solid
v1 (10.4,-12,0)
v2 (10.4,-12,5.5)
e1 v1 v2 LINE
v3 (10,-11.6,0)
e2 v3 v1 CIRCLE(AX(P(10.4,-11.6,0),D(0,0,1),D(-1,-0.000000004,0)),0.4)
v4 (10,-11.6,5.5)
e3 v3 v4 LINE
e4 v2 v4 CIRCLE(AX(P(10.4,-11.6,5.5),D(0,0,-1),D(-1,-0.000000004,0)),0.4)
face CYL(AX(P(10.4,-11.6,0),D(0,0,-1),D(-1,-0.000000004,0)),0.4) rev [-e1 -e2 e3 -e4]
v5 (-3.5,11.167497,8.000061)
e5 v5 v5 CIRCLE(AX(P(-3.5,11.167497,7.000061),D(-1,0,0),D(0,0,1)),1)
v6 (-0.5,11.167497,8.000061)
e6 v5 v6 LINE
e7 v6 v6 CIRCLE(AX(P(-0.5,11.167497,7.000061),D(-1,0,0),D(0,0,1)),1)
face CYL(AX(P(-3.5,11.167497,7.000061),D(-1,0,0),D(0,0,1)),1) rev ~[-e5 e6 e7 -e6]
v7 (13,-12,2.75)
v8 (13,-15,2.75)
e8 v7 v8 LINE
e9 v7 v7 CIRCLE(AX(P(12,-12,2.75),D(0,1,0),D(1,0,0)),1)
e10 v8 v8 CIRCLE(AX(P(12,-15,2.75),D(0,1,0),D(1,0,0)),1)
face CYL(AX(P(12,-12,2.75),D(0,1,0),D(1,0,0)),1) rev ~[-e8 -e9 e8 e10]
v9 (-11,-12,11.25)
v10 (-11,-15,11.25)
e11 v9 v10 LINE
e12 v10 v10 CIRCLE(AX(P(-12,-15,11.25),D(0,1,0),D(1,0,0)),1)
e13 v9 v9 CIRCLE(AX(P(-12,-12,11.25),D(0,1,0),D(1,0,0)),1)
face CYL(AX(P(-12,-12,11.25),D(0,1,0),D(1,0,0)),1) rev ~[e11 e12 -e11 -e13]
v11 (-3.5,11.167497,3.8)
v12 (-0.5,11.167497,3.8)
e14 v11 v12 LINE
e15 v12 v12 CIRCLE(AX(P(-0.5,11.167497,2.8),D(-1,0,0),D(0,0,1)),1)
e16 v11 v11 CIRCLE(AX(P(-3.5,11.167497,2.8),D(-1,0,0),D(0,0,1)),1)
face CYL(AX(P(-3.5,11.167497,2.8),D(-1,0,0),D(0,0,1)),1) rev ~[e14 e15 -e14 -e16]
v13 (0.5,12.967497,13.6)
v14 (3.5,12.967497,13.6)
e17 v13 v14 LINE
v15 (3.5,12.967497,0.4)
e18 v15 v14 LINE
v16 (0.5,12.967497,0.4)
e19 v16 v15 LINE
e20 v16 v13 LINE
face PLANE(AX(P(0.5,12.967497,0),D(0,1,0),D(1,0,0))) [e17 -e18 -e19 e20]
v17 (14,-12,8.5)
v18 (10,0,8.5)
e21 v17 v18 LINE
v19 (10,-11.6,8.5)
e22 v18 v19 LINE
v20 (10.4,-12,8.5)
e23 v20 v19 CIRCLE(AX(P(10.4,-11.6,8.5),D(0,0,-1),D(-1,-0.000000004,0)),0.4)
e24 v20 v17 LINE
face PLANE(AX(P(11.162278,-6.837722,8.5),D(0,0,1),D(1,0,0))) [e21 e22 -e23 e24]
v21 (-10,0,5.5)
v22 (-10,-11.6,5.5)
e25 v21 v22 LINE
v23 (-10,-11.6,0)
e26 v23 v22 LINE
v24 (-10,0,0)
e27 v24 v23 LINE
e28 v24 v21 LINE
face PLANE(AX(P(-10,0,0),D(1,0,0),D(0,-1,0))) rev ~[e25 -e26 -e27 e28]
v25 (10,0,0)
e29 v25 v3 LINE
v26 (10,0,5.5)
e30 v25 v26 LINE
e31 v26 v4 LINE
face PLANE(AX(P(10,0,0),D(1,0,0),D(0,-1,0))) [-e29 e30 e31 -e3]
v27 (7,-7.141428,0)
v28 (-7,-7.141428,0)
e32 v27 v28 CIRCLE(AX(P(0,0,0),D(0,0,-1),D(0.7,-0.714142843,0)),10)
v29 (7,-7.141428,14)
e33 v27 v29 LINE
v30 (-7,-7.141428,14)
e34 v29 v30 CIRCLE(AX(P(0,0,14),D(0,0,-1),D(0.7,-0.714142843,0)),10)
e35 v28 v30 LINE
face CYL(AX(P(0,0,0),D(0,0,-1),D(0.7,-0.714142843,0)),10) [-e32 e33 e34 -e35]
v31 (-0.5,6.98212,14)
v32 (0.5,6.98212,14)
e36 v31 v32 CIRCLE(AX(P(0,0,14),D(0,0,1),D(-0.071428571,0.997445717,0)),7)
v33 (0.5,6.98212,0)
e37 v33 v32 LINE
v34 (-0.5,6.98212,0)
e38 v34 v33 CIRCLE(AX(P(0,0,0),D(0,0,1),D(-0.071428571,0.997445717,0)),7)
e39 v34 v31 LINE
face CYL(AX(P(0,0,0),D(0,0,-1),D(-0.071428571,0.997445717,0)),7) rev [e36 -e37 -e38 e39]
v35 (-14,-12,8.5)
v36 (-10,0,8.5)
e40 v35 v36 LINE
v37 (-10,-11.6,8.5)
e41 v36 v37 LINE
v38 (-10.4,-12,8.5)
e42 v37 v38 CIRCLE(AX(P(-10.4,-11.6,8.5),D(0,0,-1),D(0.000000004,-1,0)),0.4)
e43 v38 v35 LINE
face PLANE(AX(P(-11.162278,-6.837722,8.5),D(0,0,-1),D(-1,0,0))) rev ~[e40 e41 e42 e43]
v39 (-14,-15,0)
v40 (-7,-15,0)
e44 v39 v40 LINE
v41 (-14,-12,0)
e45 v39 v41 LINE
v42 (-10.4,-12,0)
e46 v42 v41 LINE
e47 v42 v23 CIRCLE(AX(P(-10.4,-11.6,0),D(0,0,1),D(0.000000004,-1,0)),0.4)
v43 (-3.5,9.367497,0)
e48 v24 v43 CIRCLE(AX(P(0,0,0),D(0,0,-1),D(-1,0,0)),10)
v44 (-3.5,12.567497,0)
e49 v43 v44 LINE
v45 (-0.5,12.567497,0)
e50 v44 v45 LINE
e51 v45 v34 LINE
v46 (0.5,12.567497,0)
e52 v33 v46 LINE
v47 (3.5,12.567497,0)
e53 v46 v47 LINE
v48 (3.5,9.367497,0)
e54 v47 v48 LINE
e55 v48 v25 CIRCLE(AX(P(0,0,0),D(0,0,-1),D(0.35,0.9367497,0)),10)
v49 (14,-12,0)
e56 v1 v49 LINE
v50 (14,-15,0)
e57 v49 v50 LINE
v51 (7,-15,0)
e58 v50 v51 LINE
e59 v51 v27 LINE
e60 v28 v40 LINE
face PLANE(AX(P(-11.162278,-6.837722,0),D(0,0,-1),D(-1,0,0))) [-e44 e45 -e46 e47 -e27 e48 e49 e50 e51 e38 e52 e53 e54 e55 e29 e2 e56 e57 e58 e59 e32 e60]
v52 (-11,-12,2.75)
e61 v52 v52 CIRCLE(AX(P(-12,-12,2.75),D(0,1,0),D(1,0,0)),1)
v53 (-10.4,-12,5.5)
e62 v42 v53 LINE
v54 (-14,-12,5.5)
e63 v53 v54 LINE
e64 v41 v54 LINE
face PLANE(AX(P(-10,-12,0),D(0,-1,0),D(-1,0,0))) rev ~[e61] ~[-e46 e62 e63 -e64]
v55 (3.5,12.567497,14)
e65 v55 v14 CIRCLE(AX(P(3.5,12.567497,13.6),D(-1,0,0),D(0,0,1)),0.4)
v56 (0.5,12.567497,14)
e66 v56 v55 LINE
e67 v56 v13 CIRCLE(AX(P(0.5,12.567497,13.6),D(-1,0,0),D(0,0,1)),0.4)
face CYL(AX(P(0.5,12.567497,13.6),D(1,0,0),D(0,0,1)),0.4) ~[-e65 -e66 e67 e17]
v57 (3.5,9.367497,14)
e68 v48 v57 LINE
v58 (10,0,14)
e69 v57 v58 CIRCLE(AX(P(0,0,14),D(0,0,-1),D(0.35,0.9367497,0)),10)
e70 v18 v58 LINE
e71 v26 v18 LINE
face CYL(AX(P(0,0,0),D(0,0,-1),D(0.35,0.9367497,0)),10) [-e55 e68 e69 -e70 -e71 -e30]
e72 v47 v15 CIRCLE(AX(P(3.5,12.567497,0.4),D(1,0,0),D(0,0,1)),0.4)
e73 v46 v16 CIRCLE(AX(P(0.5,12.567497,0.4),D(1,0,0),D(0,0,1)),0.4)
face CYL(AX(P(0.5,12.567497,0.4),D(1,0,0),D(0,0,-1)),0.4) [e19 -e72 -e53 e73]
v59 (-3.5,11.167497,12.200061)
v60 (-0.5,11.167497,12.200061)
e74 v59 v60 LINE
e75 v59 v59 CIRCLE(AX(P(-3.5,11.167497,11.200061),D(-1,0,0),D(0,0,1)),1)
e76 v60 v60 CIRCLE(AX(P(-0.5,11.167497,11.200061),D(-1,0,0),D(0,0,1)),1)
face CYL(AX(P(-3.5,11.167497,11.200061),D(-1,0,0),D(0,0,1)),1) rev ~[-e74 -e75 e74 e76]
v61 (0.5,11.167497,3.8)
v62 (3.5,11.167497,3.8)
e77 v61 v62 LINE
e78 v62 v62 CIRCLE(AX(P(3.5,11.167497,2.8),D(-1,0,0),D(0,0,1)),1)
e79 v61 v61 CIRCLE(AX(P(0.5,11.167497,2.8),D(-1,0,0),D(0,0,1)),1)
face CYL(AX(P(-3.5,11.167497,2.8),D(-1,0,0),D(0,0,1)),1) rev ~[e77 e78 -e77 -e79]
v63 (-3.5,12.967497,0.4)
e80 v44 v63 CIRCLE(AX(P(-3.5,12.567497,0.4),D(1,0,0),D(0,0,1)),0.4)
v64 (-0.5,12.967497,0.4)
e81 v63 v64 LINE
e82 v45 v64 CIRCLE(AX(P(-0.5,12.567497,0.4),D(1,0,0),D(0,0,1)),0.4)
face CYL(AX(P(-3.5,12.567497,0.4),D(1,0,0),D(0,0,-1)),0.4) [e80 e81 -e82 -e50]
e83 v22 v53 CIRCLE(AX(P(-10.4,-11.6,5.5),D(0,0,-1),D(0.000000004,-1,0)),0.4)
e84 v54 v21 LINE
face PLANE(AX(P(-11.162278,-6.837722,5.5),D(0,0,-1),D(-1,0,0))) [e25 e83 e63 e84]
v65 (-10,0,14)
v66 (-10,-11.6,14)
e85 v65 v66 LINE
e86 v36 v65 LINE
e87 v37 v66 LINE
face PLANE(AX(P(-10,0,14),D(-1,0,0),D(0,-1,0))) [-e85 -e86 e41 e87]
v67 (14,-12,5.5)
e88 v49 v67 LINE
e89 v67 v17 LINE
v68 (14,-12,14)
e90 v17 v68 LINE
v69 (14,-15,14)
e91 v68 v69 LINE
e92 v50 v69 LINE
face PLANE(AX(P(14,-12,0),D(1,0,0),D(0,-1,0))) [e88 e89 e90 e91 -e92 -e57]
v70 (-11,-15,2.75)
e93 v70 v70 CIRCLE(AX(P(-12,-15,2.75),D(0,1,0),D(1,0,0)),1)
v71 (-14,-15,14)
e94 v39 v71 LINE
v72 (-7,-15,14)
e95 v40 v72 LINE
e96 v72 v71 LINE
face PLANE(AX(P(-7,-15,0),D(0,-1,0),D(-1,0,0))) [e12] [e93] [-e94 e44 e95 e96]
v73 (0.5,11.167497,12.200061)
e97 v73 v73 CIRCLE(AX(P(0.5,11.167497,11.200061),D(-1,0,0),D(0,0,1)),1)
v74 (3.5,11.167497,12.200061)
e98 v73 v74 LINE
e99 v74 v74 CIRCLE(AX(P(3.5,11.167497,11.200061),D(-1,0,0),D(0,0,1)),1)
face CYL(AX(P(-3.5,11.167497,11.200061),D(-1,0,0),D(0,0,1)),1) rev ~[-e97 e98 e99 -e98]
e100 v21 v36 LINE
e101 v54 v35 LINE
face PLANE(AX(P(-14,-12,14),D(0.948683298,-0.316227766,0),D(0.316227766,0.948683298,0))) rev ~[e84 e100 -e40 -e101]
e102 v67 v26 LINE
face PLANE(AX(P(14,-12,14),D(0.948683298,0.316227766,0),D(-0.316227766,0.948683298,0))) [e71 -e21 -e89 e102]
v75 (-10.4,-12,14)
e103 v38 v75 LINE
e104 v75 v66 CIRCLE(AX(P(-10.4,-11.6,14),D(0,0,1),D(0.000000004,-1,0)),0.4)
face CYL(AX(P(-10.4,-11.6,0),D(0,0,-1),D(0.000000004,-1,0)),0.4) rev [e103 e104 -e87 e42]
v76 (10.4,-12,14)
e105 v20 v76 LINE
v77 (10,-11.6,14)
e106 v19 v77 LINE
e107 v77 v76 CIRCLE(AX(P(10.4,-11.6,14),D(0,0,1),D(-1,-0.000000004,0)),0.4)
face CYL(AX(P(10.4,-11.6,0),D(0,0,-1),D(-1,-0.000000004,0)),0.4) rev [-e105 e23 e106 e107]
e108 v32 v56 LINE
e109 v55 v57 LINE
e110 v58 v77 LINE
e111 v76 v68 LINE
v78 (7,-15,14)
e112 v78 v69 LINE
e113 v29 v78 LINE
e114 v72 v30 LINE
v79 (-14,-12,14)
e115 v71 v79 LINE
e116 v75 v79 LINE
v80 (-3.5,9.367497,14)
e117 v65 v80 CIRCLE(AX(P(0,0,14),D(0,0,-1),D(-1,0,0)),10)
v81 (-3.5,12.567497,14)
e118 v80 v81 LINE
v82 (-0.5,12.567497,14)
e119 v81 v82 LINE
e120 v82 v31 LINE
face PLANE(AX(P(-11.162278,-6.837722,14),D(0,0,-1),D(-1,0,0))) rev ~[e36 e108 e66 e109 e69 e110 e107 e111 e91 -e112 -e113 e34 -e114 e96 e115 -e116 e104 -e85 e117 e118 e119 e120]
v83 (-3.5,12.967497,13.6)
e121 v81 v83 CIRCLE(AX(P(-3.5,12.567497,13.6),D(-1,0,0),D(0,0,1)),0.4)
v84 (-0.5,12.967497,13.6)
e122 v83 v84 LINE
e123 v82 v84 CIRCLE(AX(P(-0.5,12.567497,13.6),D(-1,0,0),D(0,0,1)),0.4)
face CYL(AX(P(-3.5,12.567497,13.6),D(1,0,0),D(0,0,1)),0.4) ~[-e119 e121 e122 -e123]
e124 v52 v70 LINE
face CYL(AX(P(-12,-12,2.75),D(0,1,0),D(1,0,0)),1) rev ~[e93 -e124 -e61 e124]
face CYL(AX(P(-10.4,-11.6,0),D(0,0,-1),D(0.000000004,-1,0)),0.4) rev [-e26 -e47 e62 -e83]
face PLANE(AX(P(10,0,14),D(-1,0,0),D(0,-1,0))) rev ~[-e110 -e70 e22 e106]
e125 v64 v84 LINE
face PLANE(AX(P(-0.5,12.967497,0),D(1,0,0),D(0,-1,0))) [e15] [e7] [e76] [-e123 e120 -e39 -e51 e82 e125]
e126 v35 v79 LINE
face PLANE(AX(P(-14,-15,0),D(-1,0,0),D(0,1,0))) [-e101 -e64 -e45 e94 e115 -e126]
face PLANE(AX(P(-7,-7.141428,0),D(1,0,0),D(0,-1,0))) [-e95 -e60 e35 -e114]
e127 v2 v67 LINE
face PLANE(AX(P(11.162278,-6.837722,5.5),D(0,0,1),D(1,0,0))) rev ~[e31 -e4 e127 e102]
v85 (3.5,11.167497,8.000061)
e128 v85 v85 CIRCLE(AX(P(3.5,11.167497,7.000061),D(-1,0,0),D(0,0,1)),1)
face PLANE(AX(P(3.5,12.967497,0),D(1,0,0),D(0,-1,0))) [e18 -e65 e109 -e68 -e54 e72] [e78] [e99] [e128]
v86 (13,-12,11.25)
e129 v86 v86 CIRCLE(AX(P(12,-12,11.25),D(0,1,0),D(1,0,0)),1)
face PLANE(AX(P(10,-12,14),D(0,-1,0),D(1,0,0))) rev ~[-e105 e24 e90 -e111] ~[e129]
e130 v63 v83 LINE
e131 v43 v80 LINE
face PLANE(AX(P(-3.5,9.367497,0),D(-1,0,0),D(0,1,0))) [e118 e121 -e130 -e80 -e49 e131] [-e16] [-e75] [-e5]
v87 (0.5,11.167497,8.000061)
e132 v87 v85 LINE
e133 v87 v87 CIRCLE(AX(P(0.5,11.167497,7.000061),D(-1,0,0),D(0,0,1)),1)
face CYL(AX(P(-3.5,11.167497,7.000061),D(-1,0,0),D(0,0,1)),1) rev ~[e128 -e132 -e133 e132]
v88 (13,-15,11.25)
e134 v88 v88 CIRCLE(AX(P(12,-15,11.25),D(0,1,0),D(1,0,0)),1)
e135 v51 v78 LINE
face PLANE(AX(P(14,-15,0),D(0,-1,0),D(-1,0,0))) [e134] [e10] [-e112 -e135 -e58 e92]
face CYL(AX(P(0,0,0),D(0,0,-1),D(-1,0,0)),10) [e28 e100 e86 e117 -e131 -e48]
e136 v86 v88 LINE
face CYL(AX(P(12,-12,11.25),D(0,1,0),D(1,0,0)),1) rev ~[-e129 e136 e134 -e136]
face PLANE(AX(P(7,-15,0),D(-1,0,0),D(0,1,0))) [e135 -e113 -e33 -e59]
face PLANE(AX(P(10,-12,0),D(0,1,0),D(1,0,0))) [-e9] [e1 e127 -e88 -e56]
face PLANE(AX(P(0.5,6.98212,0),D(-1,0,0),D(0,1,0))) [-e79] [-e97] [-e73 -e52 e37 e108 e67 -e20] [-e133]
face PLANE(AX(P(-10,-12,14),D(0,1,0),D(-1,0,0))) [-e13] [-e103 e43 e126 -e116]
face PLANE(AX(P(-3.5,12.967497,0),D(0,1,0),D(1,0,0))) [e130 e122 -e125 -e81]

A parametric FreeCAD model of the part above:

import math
import FreeCAD as App
import Part
import Sketcher
Q = App.Units.Quantity


def edges_at(feature, points):
    """Names of the edges that pass closest to the given points."""
    edges = feature.Shape.Edges
    near = lambda p: min(range(len(edges)), key=lambda i: edges[i].distToShape(Part.Vertex(*p))[0])
    return sorted({f"Edge{near(p) + 1}" for p in points})

doc = App.newDocument("Part")
body = doc.addObject("PartDesign::Body", "Body")

sketch1 = body.newObject("Sketcher::SketchObject", "Sketch")
sketch1.AttachmentSupport = (doc.getObject("XY_Plane"), [""])
sketch1.MapMode = "FlatFace"
sketch1.addGeometry(Part.LineSegment(App.Vector(0.5, 12.97, 0), App.Vector(0.5, 6.98, 0)), False)
sketch1.addGeometry(Part.ArcOfCircle(Part.Circle(App.Vector(0, 0, 0), App.Vector(0, 0, 1), 7), math.radians(94), math.radians(446)), False)
sketch1.addGeometry(Part.LineSegment(App.Vector(-0.5, 6.98, 0), App.Vector(-0.5, 12.97, 0)), False)
sketch1.addGeometry(Part.LineSegment(App.Vector(-0.5, 12.97, 0), App.Vector(-3.5, 12.97, 0)), False)
sketch1.addGeometry(Part.LineSegment(App.Vector(-3.5, 12.97, 0), App.Vector(-3.5, 9.37, 0)), False)
sketch1.addGeometry(Part.ArcOfCircle(Part.Circle(App.Vector(0, 0, 0), App.Vector(0, 0, 1), 10), math.radians(110), math.radians(180)), False)
sketch1.addGeometry(Part.LineSegment(App.Vector(-10, 0, 0), App.Vector(-10, -11.6, 0)), False)
sketch1.addGeometry(Part.ArcOfCircle(Part.Circle(App.Vector(-10.4, -11.6, 0), App.Vector(0, 0, 1), 0.4), math.radians(-90), math.radians(0)), False)
sketch1.addGeometry(Part.LineSegment(App.Vector(-10.4, -12, 0), App.Vector(-14, -12, 0)), False)
sketch1.addGeometry(Part.LineSegment(App.Vector(-14, -12, 0), App.Vector(-14, -15, 0)), False)
sketch1.addGeometry(Part.LineSegment(App.Vector(-14, -15, 0), App.Vector(-7, -15, 0)), False)
sketch1.addGeometry(Part.LineSegment(App.Vector(-7, -15, 0), App.Vector(-7, -7.14, 0)), False)
sketch1.addGeometry(Part.ArcOfCircle(Part.Circle(App.Vector(0, 0, 0), App.Vector(0, 0, 1), 10), math.radians(-134), math.radians(-46)), False)
sketch1.addGeometry(Part.LineSegment(App.Vector(7, -7.14, 0), App.Vector(7, -15, 0)), False)
sketch1.addGeometry(Part.LineSegment(App.Vector(7, -15, 0), App.Vector(14, -15, 0)), False)
sketch1.addGeometry(Part.LineSegment(App.Vector(14, -15, 0), App.Vector(14, -12, 0)), False)
sketch1.addGeometry(Part.LineSegment(App.Vector(14, -12, 0), App.Vector(10.4, -12, 0)), False)
sketch1.addGeometry(Part.ArcOfCircle(Part.Circle(App.Vector(10.4, -11.6, 0), App.Vector(0, 0, 1), 0.4), math.radians(-180), math.radians(-90)), False)
sketch1.addGeometry(Part.LineSegment(App.Vector(10, -11.6, 0), App.Vector(10, 0, 0)), False)
sketch1.addGeometry(Part.ArcOfCircle(Part.Circle(App.Vector(0, 0, 0), App.Vector(0, 0, 1), 10), math.radians(0), math.radians(70)), False)
sketch1.addGeometry(Part.LineSegment(App.Vector(3.5, 9.37, 0), App.Vector(3.5, 12.97, 0)), False)
sketch1.addGeometry(Part.LineSegment(App.Vector(3.5, 12.97, 0), App.Vector(0.5, 12.97, 0)), False)
sketch1.addConstraint(Sketcher.Constraint("Coincident", 0, 2, 1, 2))
sketch1.addConstraint(Sketcher.Constraint("Coincident", 1, 1, 2, 1))
sketch1.addConstraint(Sketcher.Constraint("Coincident", 2, 2, 3, 1))
sketch1.addConstraint(Sketcher.Constraint("Coincident", 3, 2, 4, 1))
sketch1.addConstraint(Sketcher.Constraint("Coincident", 4, 2, 5, 1))
sketch1.addConstraint(Sketcher.Constraint("Tangent", 5, 2, 6, 1))
sketch1.addConstraint(Sketcher.Constraint("Tangent", 6, 2, 7, 2))
sketch1.addConstraint(Sketcher.Constraint("Tangent", 7, 1, 8, 1))
sketch1.addConstraint(Sketcher.Constraint("Coincident", 8, 2, 9, 1))
sketch1.addConstraint(Sketcher.Constraint("Coincident", 9, 2, 10, 1))
sketch1.addConstraint(Sketcher.Constraint("Coincident", 10, 2, 11, 1))
sketch1.addConstraint(Sketcher.Constraint("Coincident", 11, 2, 12, 1))
sketch1.addConstraint(Sketcher.Constraint("Coincident", 12, 2, 13, 1))
sketch1.addConstraint(Sketcher.Constraint("Coincident", 13, 2, 14, 1))
sketch1.addConstraint(Sketcher.Constraint("Coincident", 14, 2, 15, 1))
sketch1.addConstraint(Sketcher.Constraint("Coincident", 15, 2, 16, 1))
sketch1.addConstraint(Sketcher.Constraint("Tangent", 16, 2, 17, 2))
sketch1.addConstraint(Sketcher.Constraint("Tangent", 17, 1, 18, 1))
sketch1.addConstraint(Sketcher.Constraint("Tangent", 18, 2, 19, 1))
sketch1.addConstraint(Sketcher.Constraint("Coincident", 19, 2, 20, 1))
sketch1.addConstraint(Sketcher.Constraint("Coincident", 20, 2, 21, 1))
sketch1.addConstraint(Sketcher.Constraint("Coincident", 21, 2, 0, 1))
sketch1.addConstraint(Sketcher.Constraint("Vertical", 0))
sketch1.addConstraint(Sketcher.Constraint("Vertical", 2))
sketch1.addConstraint(Sketcher.Constraint("Horizontal", 3))
sketch1.addConstraint(Sketcher.Constraint("Vertical", 4))
sketch1.addConstraint(Sketcher.Constraint("Vertical", 6))
sketch1.addConstraint(Sketcher.Constraint("Horizontal", 8))
sketch1.addConstraint(Sketcher.Constraint("Vertical", 9))
sketch1.addConstraint(Sketcher.Constraint("Horizontal", 10))
sketch1.addConstraint(Sketcher.Constraint("Vertical", 11))
sketch1.addConstraint(Sketcher.Constraint("Vertical", 13))
sketch1.addConstraint(Sketcher.Constraint("Horizontal", 14))
sketch1.addConstraint(Sketcher.Constraint("Vertical", 15))
sketch1.addConstraint(Sketcher.Constraint("Horizontal", 16))
sketch1.addConstraint(Sketcher.Constraint("Vertical", 18))
sketch1.addConstraint(Sketcher.Constraint("Vertical", 20))
sketch1.addConstraint(Sketcher.Constraint("Horizontal", 21))
sketch1.addConstraint(Sketcher.Constraint("Coincident", 1, 3, -1, 1))
sketch1.addConstraint(Sketcher.Constraint("Coincident", 5, 3, -1, 1))
sketch1.addConstraint(Sketcher.Constraint("Coincident", 12, 3, -1, 1))
sketch1.addConstraint(Sketcher.Constraint("Coincident", 19, 3, -1, 1))
sketch1.addConstraint(Sketcher.Constraint("Equal", 5, 12))
sketch1.addConstraint(Sketcher.Constraint("Equal", 7, 17))
sketch1.addConstraint(Sketcher.Constraint("Equal", 12, 19))
sketch1.addConstraint(Sketcher.Constraint("Symmetric", 10, 2, 13, 2, -2))
sketch1.addConstraint(Sketcher.Constraint("Symmetric", 8, 2, 15, 2, -2))
sketch1.addConstraint(Sketcher.Constraint("Symmetric", 3, 2, 20, 2, -2))
sketch1.addConstraint(Sketcher.Constraint("Horizontal", 0, 2, 1, 1))
sketch1.addConstraint(Sketcher.Constraint("Equal", 16, 4))
sketch1.addConstraint(Sketcher.Constraint("Equal", 21, 9))
sketch1.addConstraint(Sketcher.Constraint("Radius", 1, Q("7 mm")))
sketch1.addConstraint(Sketcher.Constraint("Radius", 5, Q("10 mm")))
sketch1.addConstraint(Sketcher.Constraint("Radius", 7, Q("0.4 mm")))
sketch1.addConstraint(Sketcher.Constraint("DistanceX", 3, 2, 3, 1, Q("3 mm")))
sketch1.addConstraint(Sketcher.Constraint("DistanceX", 10, 1, 10, 2, Q("7 mm")))
sketch1.addConstraint(Sketcher.Constraint("DistanceX", 8, 2, 8, 1, Q("3.6 mm")))
sketch1.addConstraint(Sketcher.Constraint("DistanceY", 6, 2, 6, 1, Q("11.6 mm")))
sketch1.addConstraint(Sketcher.Constraint("DistanceX", 1, 1, 0, 2, Q("1 mm")))
pad1 = body.newObject("PartDesign::Pad", "Pad")
pad1.Profile = sketch1
pad1.Length = 14

sketch2 = body.newObject("Sketcher::SketchObject", "Sketch001")
sketch2.AttachmentSupport = (doc.getObject("XY_Plane"), [""])
sketch2.MapMode = "FlatFace"
sketch2.AttachmentOffset = App.Placement(App.Vector(0, 0, 14), App.Rotation())
sketch2.addGeometry(Part.LineSegment(App.Vector(-7.4, -14.6, 0), App.Vector(-7.4, -15, 0)), False)
sketch2.addGeometry(Part.LineSegment(App.Vector(-7.4, -15, 0), App.Vector(-7, -15, 0)), False)
sketch2.addGeometry(Part.LineSegment(App.Vector(-7, -15, 0), App.Vector(-7, -14.6, 0)), False)
sketch2.addGeometry(Part.LineSegment(App.Vector(-7, -14.6, 0), App.Vector(-7.4, -14.6, 0)), False)
sketch2.addGeometry(Part.LineSegment(App.Vector(7, -14.6, 0), App.Vector(7, -15, 0)), False)
sketch2.addGeometry(Part.LineSegment(App.Vector(7, -15, 0), App.Vector(7.4, -15, 0)), False)
sketch2.addGeometry(Part.LineSegment(App.Vector(7.4, -15, 0), App.Vector(7.4, -14.6, 0)), False)
sketch2.addGeometry(Part.LineSegment(App.Vector(7.4, -14.6, 0), App.Vector(7, -14.6, 0)), False)
sketch2.addConstraint(Sketcher.Constraint("Coincident", 0, 2, 1, 1))
sketch2.addConstraint(Sketcher.Constraint("Coincident", 1, 2, 2, 1))
sketch2.addConstraint(Sketcher.Constraint("Coincident", 2, 2, 3, 1))
sketch2.addConstraint(Sketcher.Constraint("Coincident", 3, 2, 0, 1))
sketch2.addConstraint(Sketcher.Constraint("Coincident", 4, 2, 5, 1))
sketch2.addConstraint(Sketcher.Constraint("Coincident", 5, 2, 6, 1))
sketch2.addConstraint(Sketcher.Constraint("Coincident", 6, 2, 7, 1))
sketch2.addConstraint(Sketcher.Constraint("Coincident", 7, 2, 4, 1))
sketch2.addConstraint(Sketcher.Constraint("Vertical", 0))
sketch2.addConstraint(Sketcher.Constraint("Horizontal", 1))
sketch2.addConstraint(Sketcher.Constraint("Vertical", 2))
sketch2.addConstraint(Sketcher.Constraint("Horizontal", 3))
sketch2.addConstraint(Sketcher.Constraint("Vertical", 4))
sketch2.addConstraint(Sketcher.Constraint("Horizontal", 5))
sketch2.addConstraint(Sketcher.Constraint("Vertical", 6))
sketch2.addConstraint(Sketcher.Constraint("Horizontal", 7))
sketch2.addConstraint(Sketcher.Constraint("Symmetric", 1, 2, 4, 2, -2))
sketch2.addConstraint(Sketcher.Constraint("Symmetric", 3, 2, 6, 2, -2))
sketch2.addConstraint(Sketcher.Constraint("Equal", 7, 0))
sketch2.addConstraint(Sketcher.Constraint("DistanceX", 1, 1, 1, 2, Q("0.4 mm")))
sketch2.addConstraint(Sketcher.Constraint("DistanceY", 0, 2, -1, 1, Q("15 mm")))
sketch2.addConstraint(Sketcher.Constraint("DistanceX", 1, 2, -1, 1, Q("7 mm")))
pocket1 = body.newObject("PartDesign::Pocket", "Pocket")
pocket1.Profile = sketch2
pocket1.Type = "ThroughAll"
pocket1.Midplane = True

sketch3 = body.newObject("Sketcher::SketchObject", "Sketch002")
sketch3.AttachmentSupport = (doc.getObject("XY_Plane"), [""])
sketch3.MapMode = "FlatFace"
sketch3.AttachmentOffset = App.Placement(App.Vector(0, 0, 14), App.Rotation())
sketch3.addGeometry(Part.LineSegment(App.Vector(-10, 0, 0), App.Vector(-14, -12, 0)), False)
sketch3.addGeometry(Part.LineSegment(App.Vector(-14, -12, 0), App.Vector(-10, -12, 0)), False)
sketch3.addGeometry(Part.LineSegment(App.Vector(-10, -12, 0), App.Vector(-10, 0, 0)), False)
sketch3.addGeometry(Part.LineSegment(App.Vector(14, -12, 0), App.Vector(10, 0, 0)), False)
sketch3.addGeometry(Part.LineSegment(App.Vector(10, 0, 0), App.Vector(10, -12, 0)), False)
sketch3.addGeometry(Part.LineSegment(App.Vector(10, -12, 0), App.Vector(14, -12, 0)), False)
sketch3.addConstraint(Sketcher.Constraint("Coincident", 0, 2, 1, 1))
sketch3.addConstraint(Sketcher.Constraint("Coincident", 1, 2, 2, 1))
sketch3.addConstraint(Sketcher.Constraint("Coincident", 2, 2, 0, 1))
sketch3.addConstraint(Sketcher.Constraint("Coincident", 3, 2, 4, 1))
sketch3.addConstraint(Sketcher.Constraint("Coincident", 4, 2, 5, 1))
sketch3.addConstraint(Sketcher.Constraint("Coincident", 5, 2, 3, 1))
sketch3.addConstraint(Sketcher.Constraint("Horizontal", 1))
sketch3.addConstraint(Sketcher.Constraint("Vertical", 2))
sketch3.addConstraint(Sketcher.Constraint("Vertical", 4))
sketch3.addConstraint(Sketcher.Constraint("Horizontal", 5))
sketch3.addConstraint(Sketcher.Constraint("Symmetric", 2, 2, 3, 2, -1, 1))
sketch3.addConstraint(Sketcher.Constraint("Symmetric", 0, 2, 5, 2, -2))
sketch3.addConstraint(Sketcher.Constraint("PointOnObject", 2, 2, -1))
sketch3.addConstraint(Sketcher.Constraint("DistanceX", 1, 1, 1, 2, Q("4 mm")))
sketch3.addConstraint(Sketcher.Constraint("DistanceY", 2, 1, 2, 2, Q("12 mm")))
sketch3.addConstraint(Sketcher.Constraint("DistanceX", 0, 2, -1, 1, Q("14 mm")))
pad2 = body.newObject("PartDesign::Pad", "Pad001")
pad2.Profile = sketch3
pad2.Type = "UpToLast"
pad2.Reversed = True

sketch4 = body.newObject("Sketcher::SketchObject", "Sketch003")
sketch4.AttachmentSupport = (doc.getObject("XY_Plane"), [""])
sketch4.MapMode = "FlatFace"
sketch4.AttachmentOffset = App.Placement(App.Vector(0, 0, 14), App.Rotation())
sketch4.addGeometry(Part.LineSegment(App.Vector(-10, 0, 0), App.Vector(-14, -12, 0)), False)
sketch4.addGeometry(Part.LineSegment(App.Vector(-14, -12, 0), App.Vector(-10, -12, 0)), False)
sketch4.addGeometry(Part.LineSegment(App.Vector(-10, -12, 0), App.Vector(-10, 0, 0)), False)
sketch4.addGeometry(Part.LineSegment(App.Vector(14, -12, 0), App.Vector(10, 0, 0)), False)
sketch4.addGeometry(Part.LineSegment(App.Vector(10, 0, 0), App.Vector(10, -12, 0)), False)
sketch4.addGeometry(Part.LineSegment(App.Vector(10, -12, 0), App.Vector(14, -12, 0)), False)
sketch4.addConstraint(Sketcher.Constraint("Coincident", 0, 2, 1, 1))
sketch4.addConstraint(Sketcher.Constraint("Coincident", 1, 2, 2, 1))
sketch4.addConstraint(Sketcher.Constraint("Coincident", 2, 2, 0, 1))
sketch4.addConstraint(Sketcher.Constraint("Coincident", 3, 2, 4, 1))
sketch4.addConstraint(Sketcher.Constraint("Coincident", 4, 2, 5, 1))
sketch4.addConstraint(Sketcher.Constraint("Coincident", 5, 2, 3, 1))
sketch4.addConstraint(Sketcher.Constraint("Horizontal", 1))
sketch4.addConstraint(Sketcher.Constraint("Vertical", 2))
sketch4.addConstraint(Sketcher.Constraint("Vertical", 4))
sketch4.addConstraint(Sketcher.Constraint("Horizontal", 5))
sketch4.addConstraint(Sketcher.Constraint("Symmetric", 2, 2, 3, 2, -1, 1))
sketch4.addConstraint(Sketcher.Constraint("Symmetric", 0, 2, 5, 2, -2))
sketch4.addConstraint(Sketcher.Constraint("PointOnObject", 2, 2, -1))
sketch4.addConstraint(Sketcher.Constraint("DistanceX", 1, 1, 1, 2, Q("4 mm")))
sketch4.addConstraint(Sketcher.Constraint("DistanceY", 2, 1, 2, 2, Q("12 mm")))
sketch4.addConstraint(Sketcher.Constraint("DistanceX", 0, 2, -1, 1, Q("14 mm")))
pocket2 = body.newObject("PartDesign::Pocket", "Pocket001")
pocket2.Profile = sketch4
pocket2.Type = "TwoLengths"
pocket2.Length = 1
pocket2.Length2 = 5.5
pocket2.Reversed = True

sketch5 = body.newObject("Sketcher::SketchObject", "Sketch004")
sketch5.AttachmentSupport = (doc.getObject("XY_Plane"), [""])
sketch5.MapMode = "FlatFace"
sketch5.addGeometry(Part.LineSegment(App.Vector(10, 0, 0), App.Vector(14, -12, 0)), False)
sketch5.addGeometry(Part.LineSegment(App.Vector(14, -12, 0), App.Vector(10, -12, 0)), False)
sketch5.addGeometry(Part.LineSegment(App.Vector(10, -12, 0), App.Vector(10, 0, 0)), False)
sketch5.addGeometry(Part.LineSegment(App.Vector(-14, -12, 0), App.Vector(-10, 0, 0)), False)
sketch5.addGeometry(Part.LineSegment(App.Vector(-10, 0, 0), App.Vector(-10, -12, 0)), False)
sketch5.addGeometry(Part.LineSegment(App.Vector(-10, -12, 0), App.Vector(-14, -12, 0)), False)
sketch5.addConstraint(Sketcher.Constraint("Coincident", 0, 2, 1, 1))
sketch5.addConstraint(Sketcher.Constraint("Coincident", 1, 2, 2, 1))
sketch5.addConstraint(Sketcher.Constraint("Coincident", 2, 2, 0, 1))
sketch5.addConstraint(Sketcher.Constraint("Coincident", 3, 2, 4, 1))
sketch5.addConstraint(Sketcher.Constraint("Coincident", 4, 2, 5, 1))
sketch5.addConstraint(Sketcher.Constraint("Coincident", 5, 2, 3, 1))
sketch5.addConstraint(Sketcher.Constraint("Horizontal", 1))
sketch5.addConstraint(Sketcher.Constraint("Vertical", 2))
sketch5.addConstraint(Sketcher.Constraint("Vertical", 4))
sketch5.addConstraint(Sketcher.Constraint("Horizontal", 5))
sketch5.addConstraint(Sketcher.Constraint("Symmetric", 2, 2, 3, 2, -1, 1))
sketch5.addConstraint(Sketcher.Constraint("Symmetric", 0, 2, 5, 2, -2))
sketch5.addConstraint(Sketcher.Constraint("PointOnObject", 2, 2, -1))
sketch5.addConstraint(Sketcher.Constraint("DistanceX", 1, 2, 1, 1, Q("4 mm")))
sketch5.addConstraint(Sketcher.Constraint("DistanceY", 2, 1, 2, 2, Q("12 mm")))
sketch5.addConstraint(Sketcher.Constraint("DistanceX", -1, 1, 0, 2, Q("14 mm")))
pocket3 = body.newObject("PartDesign::Pocket", "Pocket002")
pocket3.Profile = sketch5
pocket3.Length = 5.5
pocket3.Reversed = True

sketch6 = body.newObject("Sketcher::SketchObject", "Sketch005")
sketch6.AttachmentSupport = (doc.getObject("XY_Plane"), [""])
sketch6.MapMode = "FlatFace"
sketch6.addGeometry(Part.LineSegment(App.Vector(0.5, 12.97, 0), App.Vector(0.5, 6.98, 0)), False)
sketch6.addGeometry(Part.ArcOfCircle(Part.Circle(App.Vector(0, 0, 0), App.Vector(0, 0, 1), 7), math.radians(94), math.radians(446)), False)
sketch6.addGeometry(Part.LineSegment(App.Vector(-0.5, 6.98, 0), App.Vector(-0.5, 12.97, 0)), False)
sketch6.addGeometry(Part.LineSegment(App.Vector(-0.5, 12.97, 0), App.Vector(-3.5, 12.97, 0)), False)
sketch6.addGeometry(Part.LineSegment(App.Vector(-3.5, 12.97, 0), App.Vector(-3.5, 9.37, 0)), False)
sketch6.addGeometry(Part.ArcOfCircle(Part.Circle(App.Vector(0, 0, 0), App.Vector(0, 0, 1), 10), math.radians(110), math.radians(180)), False)
sketch6.addGeometry(Part.LineSegment(App.Vector(-10, 0, 0), App.Vector(-10, -11.6, 0)), False)
sketch6.addGeometry(Part.ArcOfCircle(Part.Circle(App.Vector(-10.4, -11.6, 0), App.Vector(0, 0, 1), 0.4), math.radians(-90), math.radians(0)), False)
sketch6.addGeometry(Part.LineSegment(App.Vector(-10.4, -12, 0), App.Vector(-14, -12, 0)), False)
sketch6.addGeometry(Part.LineSegment(App.Vector(-14, -12, 0), App.Vector(-14, -15, 0)), False)
sketch6.addGeometry(Part.LineSegment(App.Vector(-14, -15, 0), App.Vector(-7, -15, 0)), False)
sketch6.addGeometry(Part.LineSegment(App.Vector(-7, -15, 0), App.Vector(-7, -7.14, 0)), False)
sketch6.addGeometry(Part.ArcOfCircle(Part.Circle(App.Vector(0, 0, 0), App.Vector(0, 0, 1), 10), math.radians(-134), math.radians(-46)), False)
sketch6.addGeometry(Part.LineSegment(App.Vector(7, -7.14, 0), App.Vector(7, -15, 0)), False)
sketch6.addGeometry(Part.LineSegment(App.Vector(7, -15, 0), App.Vector(14, -15, 0)), False)
sketch6.addGeometry(Part.LineSegment(App.Vector(14, -15, 0), App.Vector(14, -12, 0)), False)
sketch6.addGeometry(Part.LineSegment(App.Vector(14, -12, 0), App.Vector(10.4, -12, 0)), False)
sketch6.addGeometry(Part.ArcOfCircle(Part.Circle(App.Vector(10.4, -11.6, 0), App.Vector(0, 0, 1), 0.4), math.radians(-180), math.radians(-90)), False)
sketch6.addGeometry(Part.LineSegment(App.Vector(10, -11.6, 0), App.Vector(10, 0, 0)), False)
sketch6.addGeometry(Part.ArcOfCircle(Part.Circle(App.Vector(0, 0, 0), App.Vector(0, 0, 1), 10), math.radians(0), math.radians(70)), False)
sketch6.addGeometry(Part.LineSegment(App.Vector(3.5, 9.37, 0), App.Vector(3.5, 12.97, 0)), False)
sketch6.addGeometry(Part.LineSegment(App.Vector(3.5, 12.97, 0), App.Vector(0.5, 12.97, 0)), False)
sketch6.addConstraint(Sketcher.Constraint("Coincident", 0, 2, 1, 2))
sketch6.addConstraint(Sketcher.Constraint("Coincident", 1, 1, 2, 1))
sketch6.addConstraint(Sketcher.Constraint("Coincident", 2, 2, 3, 1))
sketch6.addConstraint(Sketcher.Constraint("Coincident", 3, 2, 4, 1))
sketch6.addConstraint(Sketcher.Constraint("Coincident", 4, 2, 5, 1))
sketch6.addConstraint(Sketcher.Constraint("Tangent", 5, 2, 6, 1))
sketch6.addConstraint(Sketcher.Constraint("Tangent", 6, 2, 7, 2))
sketch6.addConstraint(Sketcher.Constraint("Tangent", 7, 1, 8, 1))
sketch6.addConstraint(Sketcher.Constraint("Coincident", 8, 2, 9, 1))
sketch6.addConstraint(Sketcher.Constraint("Coincident", 9, 2, 10, 1))
sketch6.addConstraint(Sketcher.Constraint("Coincident", 10, 2, 11, 1))
sketch6.addConstraint(Sketcher.Constraint("Coincident", 11, 2, 12, 1))
sketch6.addConstraint(Sketcher.Constraint("Coincident", 12, 2, 13, 1))
sketch6.addConstraint(Sketcher.Constraint("Coincident", 13, 2, 14, 1))
sketch6.addConstraint(Sketcher.Constraint("Coincident", 14, 2, 15, 1))
sketch6.addConstraint(Sketcher.Constraint("Coincident", 15, 2, 16, 1))
sketch6.addConstraint(Sketcher.Constraint("Tangent", 16, 2, 17, 2))
sketch6.addConstraint(Sketcher.Constraint("Tangent", 17, 1, 18, 1))
sketch6.addConstraint(Sketcher.Constraint("Tangent", 18, 2, 19, 1))
sketch6.addConstraint(Sketcher.Constraint("Coincident", 19, 2, 20, 1))
sketch6.addConstraint(Sketcher.Constraint("Coincident", 20, 2, 21, 1))
sketch6.addConstraint(Sketcher.Constraint("Coincident", 21, 2, 0, 1))
sketch6.addConstraint(Sketcher.Constraint("Vertical", 0))
sketch6.addConstraint(Sketcher.Constraint("Vertical", 2))
sketch6.addConstraint(Sketcher.Constraint("Horizontal", 3))
sketch6.addConstraint(Sketcher.Constraint("Vertical", 4))
sketch6.addConstraint(Sketcher.Constraint("Vertical", 6))
sketch6.addConstraint(Sketcher.Constraint("Horizontal", 8))
sketch6.addConstraint(Sketcher.Constraint("Vertical", 9))
sketch6.addConstraint(Sketcher.Constraint("Horizontal", 10))
sketch6.addConstraint(Sketcher.Constraint("Vertical", 11))
sketch6.addConstraint(Sketcher.Constraint("Vertical", 13))
sketch6.addConstraint(Sketcher.Constraint("Horizontal", 14))
sketch6.addConstraint(Sketcher.Constraint("Vertical", 15))
sketch6.addConstraint(Sketcher.Constraint("Horizontal", 16))
sketch6.addConstraint(Sketcher.Constraint("Vertical", 18))
sketch6.addConstraint(Sketcher.Constraint("Vertical", 20))
sketch6.addConstraint(Sketcher.Constraint("Horizontal", 21))
sketch6.addConstraint(Sketcher.Constraint("Coincident", 1, 3, -1, 1))
sketch6.addConstraint(Sketcher.Constraint("Coincident", 5, 3, -1, 1))
sketch6.addConstraint(Sketcher.Constraint("Coincident", 12, 3, -1, 1))
sketch6.addConstraint(Sketcher.Constraint("Coincident", 19, 3, -1, 1))
sketch6.addConstraint(Sketcher.Constraint("Equal", 5, 12))
sketch6.addConstraint(Sketcher.Constraint("Equal", 7, 17))
sketch6.addConstraint(Sketcher.Constraint("Equal", 12, 19))
sketch6.addConstraint(Sketcher.Constraint("Symmetric", 10, 2, 13, 2, -2))
sketch6.addConstraint(Sketcher.Constraint("Symmetric", 8, 2, 15, 2, -2))
sketch6.addConstraint(Sketcher.Constraint("Symmetric", 3, 2, 20, 2, -2))
sketch6.addConstraint(Sketcher.Constraint("Horizontal", 0, 2, 1, 1))
sketch6.addConstraint(Sketcher.Constraint("Equal", 16, 4))
sketch6.addConstraint(Sketcher.Constraint("Equal", 21, 9))
sketch6.addConstraint(Sketcher.Constraint("Radius", 1, Q("7 mm")))
sketch6.addConstraint(Sketcher.Constraint("Radius", 5, Q("10 mm")))
sketch6.addConstraint(Sketcher.Constraint("Radius", 7, Q("0.4 mm")))
sketch6.addConstraint(Sketcher.Constraint("DistanceX", 3, 2, 3, 1, Q("3 mm")))
sketch6.addConstraint(Sketcher.Constraint("DistanceX", 10, 1, 10, 2, Q("7 mm")))
sketch6.addConstraint(Sketcher.Constraint("DistanceX", 8, 2, 8, 1, Q("3.6 mm")))
sketch6.addConstraint(Sketcher.Constraint("DistanceY", 6, 2, 6, 1, Q("11.6 mm")))
sketch6.addConstraint(Sketcher.Constraint("DistanceX", 1, 1, 0, 2, Q("1 mm")))
pad3 = body.newObject("PartDesign::Pad", "Pad002")
pad3.Profile = sketch6
pad3.Length = 14

sketch7 = body.newObject("Sketcher::SketchObject", "Sketch006")
sketch7.AttachmentSupport = (doc.getObject("XZ_Plane"), [""])
sketch7.MapMode = "FlatFace"
sketch7.AttachmentOffset = App.Placement(App.Vector(0, 0, 12), App.Rotation())
sketch7.addGeometry(Part.Circle(App.Vector(-12, 11.2, 0), App.Vector(0, 0, 1), 1), False)
sketch7.addGeometry(Part.Circle(App.Vector(-12, 2.8, 0), App.Vector(0, 0, 1), 1), False)
sketch7.addGeometry(Part.Circle(App.Vector(12, 2.8, 0), App.Vector(0, 0, 1), 1), False)
sketch7.addGeometry(Part.Circle(App.Vector(12, 11.2, 0), App.Vector(0, 0, 1), 1), False)
sketch7.addConstraint(Sketcher.Constraint("Equal", 0, 1))
sketch7.addConstraint(Sketcher.Constraint("Equal", 1, 2))
sketch7.addConstraint(Sketcher.Constraint("Equal", 2, 3))
sketch7.addConstraint(Sketcher.Constraint("Symmetric", 1, 3, 2, 3, -2))
sketch7.addConstraint(Sketcher.Constraint("Symmetric", 0, 3, 3, 3, -2))
sketch7.addConstraint(Sketcher.Constraint("Vertical", 0, 3, 1, 3))
sketch7.addConstraint(Sketcher.Constraint("Diameter", 0, Q("2 mm")))
sketch7.addConstraint(Sketcher.Constraint("DistanceX", 0, 3, -1, 1, Q("12 mm")))
sketch7.addConstraint(Sketcher.Constraint("DistanceY", 1, 3, 0, 3, Q("8.5 mm")))
sketch7.addConstraint(Sketcher.Constraint("DistanceY", -1, 1, 0, 3, Q("11.25 mm")))
pocket4 = body.newObject("PartDesign::Pocket", "Pocket003")
pocket4.Profile = sketch7
pocket4.Type = "ThroughAll"
pocket4.Reversed = True
doc.recompute()

fillet = body.newObject("PartDesign::Fillet", "Fillet")
fillet.Base = (pocket4, edges_at(pocket4, [
    (-2, 12.967, 0),
    (2, 12.967, 14),
    (-2, 12.967, 14),
    (2, 12.967, 0),
]))
fillet.Radius = 0.4

sketch8 = body.newObject("Sketcher::SketchObject", "Sketch007")
sketch8.AttachmentSupport = (doc.getObject("YZ_Plane"), [""])
sketch8.MapMode = "FlatFace"
sketch8.AttachmentOffset = App.Placement(App.Vector(0, 0, -3.5), App.Rotation())
sketch8.addGeometry(Part.Circle(App.Vector(11.2, 2.8, 0), App.Vector(0, 0, 1), 1), False)
sketch8.addGeometry(Part.Circle(App.Vector(11.2, 7, 0), App.Vector(0, 0, 1), 1), False)
sketch8.addGeometry(Part.Circle(App.Vector(11.2, 11.2, 0), App.Vector(0, 0, 1), 1), False)
sketch8.addConstraint(Sketcher.Constraint("Equal", 0, 1))
sketch8.addConstraint(Sketcher.Constraint("Equal", 1, 2))
sketch8.addConstraint(Sketcher.Constraint("Vertical", 0, 3, 1, 3))
sketch8.addConstraint(Sketcher.Constraint("Vertical", 1, 3, 2, 3))
sketch8.addConstraint(Sketcher.Constraint("Diameter", 0, Q("2 mm")))
sketch8.addConstraint(Sketcher.Constraint("DistanceY", -1, 1, 0, 3, Q("2.8 mm")))
sketch8.addConstraint(Sketcher.Constraint("DistanceY", 1, 3, 2, 3, Q("4.2 mm")))
sketch8.addConstraint(Sketcher.Constraint("DistanceY", -1, 1, 1, 3, Q("7.000061 mm")))
sketch8.addConstraint(Sketcher.Constraint("DistanceX", -1, 1, 0, 3, Q("11.167497 mm")))
pocket5 = body.newObject("PartDesign::Pocket", "Pocket004")
pocket5.Profile = sketch8
pocket5.Type = "ThroughAll"
pocket5.Reversed = True

doc.recompute()
